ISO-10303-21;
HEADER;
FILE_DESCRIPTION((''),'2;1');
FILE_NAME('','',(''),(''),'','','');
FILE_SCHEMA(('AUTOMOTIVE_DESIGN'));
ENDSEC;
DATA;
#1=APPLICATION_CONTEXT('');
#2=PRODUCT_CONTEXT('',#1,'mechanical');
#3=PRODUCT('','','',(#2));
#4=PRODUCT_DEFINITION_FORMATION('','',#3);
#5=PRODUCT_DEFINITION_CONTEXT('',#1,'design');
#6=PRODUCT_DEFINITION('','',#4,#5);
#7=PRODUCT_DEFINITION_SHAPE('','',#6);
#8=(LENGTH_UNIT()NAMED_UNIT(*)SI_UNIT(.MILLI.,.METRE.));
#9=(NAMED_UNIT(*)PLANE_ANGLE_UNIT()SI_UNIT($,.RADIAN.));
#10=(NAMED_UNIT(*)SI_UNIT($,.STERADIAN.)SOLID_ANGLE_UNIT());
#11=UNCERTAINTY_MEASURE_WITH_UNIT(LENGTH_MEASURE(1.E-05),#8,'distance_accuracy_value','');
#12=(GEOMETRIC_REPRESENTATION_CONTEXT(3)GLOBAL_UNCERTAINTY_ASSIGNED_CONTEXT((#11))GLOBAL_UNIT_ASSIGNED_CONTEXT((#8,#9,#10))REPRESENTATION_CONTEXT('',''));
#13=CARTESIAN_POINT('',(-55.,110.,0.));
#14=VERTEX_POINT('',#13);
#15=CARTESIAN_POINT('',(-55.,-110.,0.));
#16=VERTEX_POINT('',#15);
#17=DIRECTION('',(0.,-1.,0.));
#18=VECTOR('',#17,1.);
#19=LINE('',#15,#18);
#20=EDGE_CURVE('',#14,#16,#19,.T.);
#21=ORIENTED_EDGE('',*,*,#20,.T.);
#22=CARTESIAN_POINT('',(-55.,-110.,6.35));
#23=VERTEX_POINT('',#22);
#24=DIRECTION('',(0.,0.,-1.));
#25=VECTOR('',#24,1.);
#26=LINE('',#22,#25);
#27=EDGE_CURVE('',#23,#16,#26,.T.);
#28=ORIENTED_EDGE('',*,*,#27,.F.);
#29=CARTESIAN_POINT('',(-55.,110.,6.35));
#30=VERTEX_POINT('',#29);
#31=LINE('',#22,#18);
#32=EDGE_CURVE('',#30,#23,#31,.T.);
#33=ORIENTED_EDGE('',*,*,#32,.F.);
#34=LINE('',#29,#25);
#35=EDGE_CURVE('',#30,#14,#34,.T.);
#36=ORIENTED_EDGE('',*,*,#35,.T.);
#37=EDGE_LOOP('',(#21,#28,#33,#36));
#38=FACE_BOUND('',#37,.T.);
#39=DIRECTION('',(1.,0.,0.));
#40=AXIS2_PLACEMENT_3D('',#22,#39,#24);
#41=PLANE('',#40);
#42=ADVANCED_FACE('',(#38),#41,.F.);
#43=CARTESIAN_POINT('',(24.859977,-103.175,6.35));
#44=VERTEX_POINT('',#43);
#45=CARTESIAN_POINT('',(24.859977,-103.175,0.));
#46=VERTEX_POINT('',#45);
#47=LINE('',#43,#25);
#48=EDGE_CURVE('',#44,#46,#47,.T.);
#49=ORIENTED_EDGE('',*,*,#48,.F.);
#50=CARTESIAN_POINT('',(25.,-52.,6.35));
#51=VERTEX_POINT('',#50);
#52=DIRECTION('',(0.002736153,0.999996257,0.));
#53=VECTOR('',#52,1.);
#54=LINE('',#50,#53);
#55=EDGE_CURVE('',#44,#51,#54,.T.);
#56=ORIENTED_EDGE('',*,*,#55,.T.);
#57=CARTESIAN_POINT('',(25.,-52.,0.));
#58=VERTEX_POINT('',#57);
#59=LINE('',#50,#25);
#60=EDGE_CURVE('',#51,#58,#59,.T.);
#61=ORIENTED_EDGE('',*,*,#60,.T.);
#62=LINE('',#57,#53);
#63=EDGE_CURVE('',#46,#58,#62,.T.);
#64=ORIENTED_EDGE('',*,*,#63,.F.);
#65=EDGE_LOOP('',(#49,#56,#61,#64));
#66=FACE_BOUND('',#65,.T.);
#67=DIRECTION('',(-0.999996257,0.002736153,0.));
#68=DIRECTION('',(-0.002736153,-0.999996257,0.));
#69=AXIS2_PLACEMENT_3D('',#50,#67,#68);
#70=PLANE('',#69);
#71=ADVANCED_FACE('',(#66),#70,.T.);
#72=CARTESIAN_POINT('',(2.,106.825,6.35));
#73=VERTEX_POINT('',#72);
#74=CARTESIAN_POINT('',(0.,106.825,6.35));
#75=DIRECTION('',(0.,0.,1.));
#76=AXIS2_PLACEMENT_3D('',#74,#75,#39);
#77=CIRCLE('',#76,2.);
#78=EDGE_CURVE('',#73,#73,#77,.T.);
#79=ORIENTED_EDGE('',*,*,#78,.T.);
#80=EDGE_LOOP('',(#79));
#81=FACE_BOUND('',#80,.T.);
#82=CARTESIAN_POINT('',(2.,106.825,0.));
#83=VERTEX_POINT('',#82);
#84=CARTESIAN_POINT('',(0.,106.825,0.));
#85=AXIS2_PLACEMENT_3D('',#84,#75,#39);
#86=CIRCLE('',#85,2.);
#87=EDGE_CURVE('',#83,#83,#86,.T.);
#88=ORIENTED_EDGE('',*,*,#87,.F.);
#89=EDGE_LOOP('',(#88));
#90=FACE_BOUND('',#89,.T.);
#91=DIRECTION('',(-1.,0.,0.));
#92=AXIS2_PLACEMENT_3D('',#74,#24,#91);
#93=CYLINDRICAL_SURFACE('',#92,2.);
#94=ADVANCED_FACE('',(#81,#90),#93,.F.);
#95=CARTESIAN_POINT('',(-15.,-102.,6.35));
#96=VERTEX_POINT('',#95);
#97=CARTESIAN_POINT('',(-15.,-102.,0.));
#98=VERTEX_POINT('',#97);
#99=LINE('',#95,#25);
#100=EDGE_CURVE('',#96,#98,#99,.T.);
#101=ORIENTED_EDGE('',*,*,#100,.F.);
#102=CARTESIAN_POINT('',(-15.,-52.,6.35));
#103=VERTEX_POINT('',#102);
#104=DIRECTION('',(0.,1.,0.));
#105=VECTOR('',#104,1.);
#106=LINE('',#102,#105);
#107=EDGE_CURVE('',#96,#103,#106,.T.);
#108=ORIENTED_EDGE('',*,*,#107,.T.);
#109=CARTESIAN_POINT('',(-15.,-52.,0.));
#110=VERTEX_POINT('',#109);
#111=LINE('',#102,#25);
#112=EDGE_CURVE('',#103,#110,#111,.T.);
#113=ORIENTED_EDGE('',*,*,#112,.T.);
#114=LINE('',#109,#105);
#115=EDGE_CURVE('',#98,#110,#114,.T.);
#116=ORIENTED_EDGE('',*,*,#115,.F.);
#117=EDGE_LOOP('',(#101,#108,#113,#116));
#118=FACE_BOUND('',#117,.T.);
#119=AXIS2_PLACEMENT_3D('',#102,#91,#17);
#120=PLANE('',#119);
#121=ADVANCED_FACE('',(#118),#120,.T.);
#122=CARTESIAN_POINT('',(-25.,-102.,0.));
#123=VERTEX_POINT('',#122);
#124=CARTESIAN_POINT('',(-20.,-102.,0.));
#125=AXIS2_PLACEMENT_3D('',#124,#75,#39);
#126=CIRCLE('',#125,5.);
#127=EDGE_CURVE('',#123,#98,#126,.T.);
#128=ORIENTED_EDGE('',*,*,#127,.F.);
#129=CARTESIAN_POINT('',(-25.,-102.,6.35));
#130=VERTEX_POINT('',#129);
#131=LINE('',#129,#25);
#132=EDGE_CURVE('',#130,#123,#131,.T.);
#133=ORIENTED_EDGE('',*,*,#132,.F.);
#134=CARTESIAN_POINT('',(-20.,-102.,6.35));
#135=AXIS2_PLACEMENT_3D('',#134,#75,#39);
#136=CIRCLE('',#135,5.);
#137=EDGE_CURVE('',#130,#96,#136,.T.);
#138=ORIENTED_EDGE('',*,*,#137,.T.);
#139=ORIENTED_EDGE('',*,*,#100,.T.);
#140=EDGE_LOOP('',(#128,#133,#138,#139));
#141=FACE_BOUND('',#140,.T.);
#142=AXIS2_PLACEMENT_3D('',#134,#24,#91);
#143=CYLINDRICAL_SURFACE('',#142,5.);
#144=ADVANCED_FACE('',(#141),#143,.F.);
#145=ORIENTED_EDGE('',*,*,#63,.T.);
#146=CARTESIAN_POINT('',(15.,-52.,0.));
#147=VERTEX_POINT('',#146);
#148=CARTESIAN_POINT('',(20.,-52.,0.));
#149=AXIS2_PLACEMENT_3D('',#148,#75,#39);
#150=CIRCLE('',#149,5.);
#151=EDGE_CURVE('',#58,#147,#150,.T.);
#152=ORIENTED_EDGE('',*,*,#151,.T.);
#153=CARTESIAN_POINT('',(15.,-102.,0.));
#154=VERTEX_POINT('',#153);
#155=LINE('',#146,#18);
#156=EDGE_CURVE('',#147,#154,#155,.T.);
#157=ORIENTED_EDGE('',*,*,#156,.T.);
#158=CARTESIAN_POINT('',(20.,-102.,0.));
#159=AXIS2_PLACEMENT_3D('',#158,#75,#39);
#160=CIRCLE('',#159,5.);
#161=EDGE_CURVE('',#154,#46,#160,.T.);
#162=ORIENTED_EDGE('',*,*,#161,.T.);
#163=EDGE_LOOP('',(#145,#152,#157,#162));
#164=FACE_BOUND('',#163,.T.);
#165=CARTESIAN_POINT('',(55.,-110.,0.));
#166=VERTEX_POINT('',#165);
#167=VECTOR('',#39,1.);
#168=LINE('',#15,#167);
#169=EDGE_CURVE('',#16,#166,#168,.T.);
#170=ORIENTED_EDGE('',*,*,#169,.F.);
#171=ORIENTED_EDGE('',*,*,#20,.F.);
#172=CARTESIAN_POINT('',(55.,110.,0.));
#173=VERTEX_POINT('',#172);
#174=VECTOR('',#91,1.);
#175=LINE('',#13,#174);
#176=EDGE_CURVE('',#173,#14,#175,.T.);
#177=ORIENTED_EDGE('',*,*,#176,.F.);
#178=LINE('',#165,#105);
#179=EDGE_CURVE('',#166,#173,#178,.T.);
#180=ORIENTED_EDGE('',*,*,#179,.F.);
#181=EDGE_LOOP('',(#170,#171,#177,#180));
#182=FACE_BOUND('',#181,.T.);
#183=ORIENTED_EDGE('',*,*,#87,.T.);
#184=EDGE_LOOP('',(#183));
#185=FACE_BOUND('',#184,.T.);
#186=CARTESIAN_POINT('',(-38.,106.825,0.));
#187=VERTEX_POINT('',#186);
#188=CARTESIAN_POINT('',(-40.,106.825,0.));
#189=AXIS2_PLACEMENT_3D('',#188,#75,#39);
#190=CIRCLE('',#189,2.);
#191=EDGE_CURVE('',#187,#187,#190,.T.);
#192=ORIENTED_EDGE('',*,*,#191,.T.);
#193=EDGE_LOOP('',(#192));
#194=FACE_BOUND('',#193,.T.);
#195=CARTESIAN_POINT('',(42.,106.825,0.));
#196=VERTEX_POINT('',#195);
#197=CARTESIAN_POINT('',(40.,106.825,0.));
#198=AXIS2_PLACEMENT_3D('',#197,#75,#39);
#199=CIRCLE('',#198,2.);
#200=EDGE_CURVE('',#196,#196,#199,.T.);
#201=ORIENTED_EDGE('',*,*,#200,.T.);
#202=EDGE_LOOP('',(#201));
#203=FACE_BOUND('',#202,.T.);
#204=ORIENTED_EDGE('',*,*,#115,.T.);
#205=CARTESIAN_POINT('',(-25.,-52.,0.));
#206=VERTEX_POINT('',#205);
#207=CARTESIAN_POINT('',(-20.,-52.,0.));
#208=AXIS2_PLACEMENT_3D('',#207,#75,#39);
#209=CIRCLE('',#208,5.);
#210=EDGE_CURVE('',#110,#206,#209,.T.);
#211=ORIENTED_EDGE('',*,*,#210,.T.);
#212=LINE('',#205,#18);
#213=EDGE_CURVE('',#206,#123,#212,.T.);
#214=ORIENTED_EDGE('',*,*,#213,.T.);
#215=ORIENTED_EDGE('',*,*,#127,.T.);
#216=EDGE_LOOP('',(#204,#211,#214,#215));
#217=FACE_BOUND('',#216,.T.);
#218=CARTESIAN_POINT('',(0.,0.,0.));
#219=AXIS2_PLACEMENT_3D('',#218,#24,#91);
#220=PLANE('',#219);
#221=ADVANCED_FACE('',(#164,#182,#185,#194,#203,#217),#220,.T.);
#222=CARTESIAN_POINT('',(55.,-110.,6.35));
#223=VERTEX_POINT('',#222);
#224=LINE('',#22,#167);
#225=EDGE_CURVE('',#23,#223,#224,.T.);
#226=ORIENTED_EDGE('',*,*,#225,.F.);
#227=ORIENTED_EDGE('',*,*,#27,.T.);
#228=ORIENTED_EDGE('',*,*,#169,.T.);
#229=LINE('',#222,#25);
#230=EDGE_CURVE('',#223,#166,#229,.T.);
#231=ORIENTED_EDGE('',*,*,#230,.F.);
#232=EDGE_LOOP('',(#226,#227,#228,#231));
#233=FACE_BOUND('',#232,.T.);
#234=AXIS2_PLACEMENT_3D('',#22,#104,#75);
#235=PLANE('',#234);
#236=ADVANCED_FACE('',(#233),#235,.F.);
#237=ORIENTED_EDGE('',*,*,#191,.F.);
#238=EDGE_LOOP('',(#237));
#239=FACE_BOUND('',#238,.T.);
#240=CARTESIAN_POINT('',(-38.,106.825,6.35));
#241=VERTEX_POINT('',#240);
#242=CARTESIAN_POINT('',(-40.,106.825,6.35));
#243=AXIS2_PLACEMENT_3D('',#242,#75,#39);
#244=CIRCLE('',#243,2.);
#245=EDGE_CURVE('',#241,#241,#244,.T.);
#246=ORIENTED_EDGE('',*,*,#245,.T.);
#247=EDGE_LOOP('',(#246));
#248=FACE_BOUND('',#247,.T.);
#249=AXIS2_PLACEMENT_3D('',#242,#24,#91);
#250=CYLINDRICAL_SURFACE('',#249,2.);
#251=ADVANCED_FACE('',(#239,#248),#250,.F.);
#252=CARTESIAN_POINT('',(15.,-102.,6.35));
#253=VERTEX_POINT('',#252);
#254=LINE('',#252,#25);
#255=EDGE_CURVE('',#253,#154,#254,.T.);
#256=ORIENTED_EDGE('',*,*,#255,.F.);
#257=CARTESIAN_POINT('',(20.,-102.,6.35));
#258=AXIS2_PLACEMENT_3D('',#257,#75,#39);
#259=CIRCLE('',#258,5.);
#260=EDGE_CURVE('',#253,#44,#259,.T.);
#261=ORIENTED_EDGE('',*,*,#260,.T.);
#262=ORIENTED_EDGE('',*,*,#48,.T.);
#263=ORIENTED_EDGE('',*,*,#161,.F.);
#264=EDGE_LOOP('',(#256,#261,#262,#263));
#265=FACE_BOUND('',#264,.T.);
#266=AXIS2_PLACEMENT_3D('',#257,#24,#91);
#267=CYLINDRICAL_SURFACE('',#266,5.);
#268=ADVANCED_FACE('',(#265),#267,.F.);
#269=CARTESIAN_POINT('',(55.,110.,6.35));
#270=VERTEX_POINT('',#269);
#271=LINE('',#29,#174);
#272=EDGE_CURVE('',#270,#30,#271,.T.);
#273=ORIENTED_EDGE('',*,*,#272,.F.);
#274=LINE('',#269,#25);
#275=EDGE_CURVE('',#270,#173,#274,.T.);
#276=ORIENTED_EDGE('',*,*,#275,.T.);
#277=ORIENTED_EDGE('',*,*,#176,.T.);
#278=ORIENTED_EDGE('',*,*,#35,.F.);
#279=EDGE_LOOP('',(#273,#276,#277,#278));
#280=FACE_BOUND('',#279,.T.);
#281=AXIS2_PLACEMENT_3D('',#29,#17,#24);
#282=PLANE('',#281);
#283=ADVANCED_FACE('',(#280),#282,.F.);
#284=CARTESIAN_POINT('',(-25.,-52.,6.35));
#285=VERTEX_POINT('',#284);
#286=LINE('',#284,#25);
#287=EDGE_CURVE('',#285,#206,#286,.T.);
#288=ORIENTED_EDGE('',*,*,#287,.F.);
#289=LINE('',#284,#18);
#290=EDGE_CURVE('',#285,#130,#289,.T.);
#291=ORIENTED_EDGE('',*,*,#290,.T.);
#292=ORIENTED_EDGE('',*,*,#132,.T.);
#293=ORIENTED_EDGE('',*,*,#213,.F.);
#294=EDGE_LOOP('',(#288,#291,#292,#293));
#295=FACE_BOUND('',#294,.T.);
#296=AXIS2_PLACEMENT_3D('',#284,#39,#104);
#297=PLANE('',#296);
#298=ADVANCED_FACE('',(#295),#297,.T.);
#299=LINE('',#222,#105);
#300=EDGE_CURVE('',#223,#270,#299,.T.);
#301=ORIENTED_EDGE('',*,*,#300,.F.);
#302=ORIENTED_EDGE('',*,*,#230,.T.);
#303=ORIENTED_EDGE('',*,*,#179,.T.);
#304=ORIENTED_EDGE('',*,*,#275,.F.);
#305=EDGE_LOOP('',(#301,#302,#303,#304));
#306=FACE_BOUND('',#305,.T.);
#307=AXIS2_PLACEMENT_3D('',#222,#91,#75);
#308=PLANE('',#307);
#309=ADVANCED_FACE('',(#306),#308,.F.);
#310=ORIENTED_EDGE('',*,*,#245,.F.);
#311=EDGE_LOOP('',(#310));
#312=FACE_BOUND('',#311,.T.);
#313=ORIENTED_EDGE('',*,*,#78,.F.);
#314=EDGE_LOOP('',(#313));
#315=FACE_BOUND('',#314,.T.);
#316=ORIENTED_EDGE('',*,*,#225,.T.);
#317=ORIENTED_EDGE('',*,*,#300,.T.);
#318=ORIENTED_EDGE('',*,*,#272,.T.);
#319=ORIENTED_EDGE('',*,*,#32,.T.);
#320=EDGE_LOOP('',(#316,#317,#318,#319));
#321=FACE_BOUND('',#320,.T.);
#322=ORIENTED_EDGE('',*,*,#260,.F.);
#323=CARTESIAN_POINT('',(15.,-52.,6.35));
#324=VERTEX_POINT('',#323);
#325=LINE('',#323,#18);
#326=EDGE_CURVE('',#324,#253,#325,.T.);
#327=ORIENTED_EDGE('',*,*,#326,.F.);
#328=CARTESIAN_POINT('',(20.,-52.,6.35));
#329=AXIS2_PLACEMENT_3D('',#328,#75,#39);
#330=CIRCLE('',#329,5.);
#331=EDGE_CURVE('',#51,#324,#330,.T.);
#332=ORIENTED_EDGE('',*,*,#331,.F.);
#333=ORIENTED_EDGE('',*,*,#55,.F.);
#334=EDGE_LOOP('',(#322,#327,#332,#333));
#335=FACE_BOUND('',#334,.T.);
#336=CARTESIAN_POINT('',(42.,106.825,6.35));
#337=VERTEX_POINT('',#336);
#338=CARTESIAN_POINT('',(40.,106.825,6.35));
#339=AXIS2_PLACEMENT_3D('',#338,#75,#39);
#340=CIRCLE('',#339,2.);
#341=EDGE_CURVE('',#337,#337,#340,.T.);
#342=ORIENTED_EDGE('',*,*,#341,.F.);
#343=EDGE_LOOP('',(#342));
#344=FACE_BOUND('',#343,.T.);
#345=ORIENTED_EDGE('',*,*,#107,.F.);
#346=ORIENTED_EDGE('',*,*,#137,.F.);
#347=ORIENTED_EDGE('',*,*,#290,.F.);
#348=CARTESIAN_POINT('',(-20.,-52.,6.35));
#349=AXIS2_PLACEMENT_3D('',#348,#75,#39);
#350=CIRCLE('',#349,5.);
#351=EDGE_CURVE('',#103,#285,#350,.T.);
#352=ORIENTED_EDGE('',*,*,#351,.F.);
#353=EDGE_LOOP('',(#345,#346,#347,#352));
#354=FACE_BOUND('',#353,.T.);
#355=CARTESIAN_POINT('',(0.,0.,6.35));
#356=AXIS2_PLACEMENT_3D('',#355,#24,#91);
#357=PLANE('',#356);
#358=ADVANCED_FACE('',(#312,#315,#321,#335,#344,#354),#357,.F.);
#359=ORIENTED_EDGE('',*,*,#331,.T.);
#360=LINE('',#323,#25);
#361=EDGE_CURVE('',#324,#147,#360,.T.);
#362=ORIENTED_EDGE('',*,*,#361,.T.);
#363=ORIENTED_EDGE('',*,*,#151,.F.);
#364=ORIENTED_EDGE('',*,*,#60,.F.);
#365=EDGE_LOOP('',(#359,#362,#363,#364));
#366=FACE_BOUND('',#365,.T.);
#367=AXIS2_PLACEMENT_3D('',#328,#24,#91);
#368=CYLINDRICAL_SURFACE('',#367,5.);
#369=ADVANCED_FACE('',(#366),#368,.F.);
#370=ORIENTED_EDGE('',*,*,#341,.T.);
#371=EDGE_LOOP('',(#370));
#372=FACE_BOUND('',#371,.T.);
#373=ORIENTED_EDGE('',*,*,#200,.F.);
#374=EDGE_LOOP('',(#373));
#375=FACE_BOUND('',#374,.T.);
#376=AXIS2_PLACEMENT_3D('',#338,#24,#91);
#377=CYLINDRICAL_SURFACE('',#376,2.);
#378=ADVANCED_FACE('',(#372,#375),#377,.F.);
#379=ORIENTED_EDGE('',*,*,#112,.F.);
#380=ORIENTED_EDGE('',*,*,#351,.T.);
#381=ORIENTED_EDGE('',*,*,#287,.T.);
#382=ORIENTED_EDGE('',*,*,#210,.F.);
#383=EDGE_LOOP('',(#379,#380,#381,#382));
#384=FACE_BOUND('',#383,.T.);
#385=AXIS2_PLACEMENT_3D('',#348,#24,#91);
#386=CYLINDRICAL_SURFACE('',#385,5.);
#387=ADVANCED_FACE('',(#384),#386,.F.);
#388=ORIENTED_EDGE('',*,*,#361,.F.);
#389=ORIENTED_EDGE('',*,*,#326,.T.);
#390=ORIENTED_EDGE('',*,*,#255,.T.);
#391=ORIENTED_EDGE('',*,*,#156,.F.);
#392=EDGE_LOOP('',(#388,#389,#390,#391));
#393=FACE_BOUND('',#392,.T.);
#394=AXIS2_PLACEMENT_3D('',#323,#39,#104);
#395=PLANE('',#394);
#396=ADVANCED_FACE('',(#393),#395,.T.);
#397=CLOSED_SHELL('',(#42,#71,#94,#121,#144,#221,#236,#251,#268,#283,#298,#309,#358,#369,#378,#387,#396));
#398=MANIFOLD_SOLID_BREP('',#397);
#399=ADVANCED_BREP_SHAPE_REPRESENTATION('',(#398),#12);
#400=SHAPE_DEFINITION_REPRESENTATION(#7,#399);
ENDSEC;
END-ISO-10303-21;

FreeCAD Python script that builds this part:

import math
import FreeCAD as App
import Part
import Sketcher


def add_polygon(sketch, points):
    """Adds a closed chain of lines whose ends are joined by coincident constraints."""
    first, n = sketch.GeometryCount, len(points)
    for a, b in zip(points, points[1:] + points[:1]):
        sketch.addGeometry(Part.LineSegment(App.Vector(*a, 0), App.Vector(*b, 0)), False)
    for i in range(n):
        sketch.addConstraint(Sketcher.Constraint("Coincident", first + i, 2, first + (i + 1) % n, 1))

doc = App.newDocument("Part")
params = doc.addObject("Spreadsheet::Sheet", "Params")
for row, (alias, value) in enumerate([
    ("sketch1_width", "110 mm"),
    ("sketch1_height", "220 mm"),
    ("pad1_length", "6.35 mm"),
    ("sketch2_diameter", "4 mm"),
    ("sketch2_radius", "5 mm"),
    ("sketch2_height", "50 mm"),
], start=1):
    params.set(f"A{row}", alias)
    params.set(f"B{row}", "=" + value)
    params.setAlias(f"B{row}", alias)

body = doc.addObject("PartDesign::Body", "Body")

sketch1 = doc.addObject("Sketcher::SketchObject", "Sketch")
body.addObject(sketch1)
sketch1.AttachmentSupport = (doc.XY_Plane, [""])
sketch1.MapMode = "FlatFace"
add_polygon(sketch1, [(-55, 110), (-55, -110), (55, -110), (55, 110)])
sketch1.addConstraint([
    Sketcher.Constraint("Vertical", 0),
    Sketcher.Constraint("Horizontal", 1),
    Sketcher.Constraint("Vertical", 2),
    Sketcher.Constraint("Horizontal", 3),
    Sketcher.Constraint("Symmetric", 0, 2, 2, 2, -1, 1),
    Sketcher.Constraint("DistanceX", 1, 1, 1, 2, 110.0),
    Sketcher.Constraint("DistanceY", 0, 2, 0, 1, 220.0),
])
sketch1.setExpression("Constraints[9]", "Params.sketch1_width")
sketch1.setExpression("Constraints[10]", "Params.sketch1_height")
pad1 = doc.addObject("PartDesign::Pad", "Pad")
body.addObject(pad1)
pad1.Profile = sketch1
pad1.setExpression("Length", "Params.pad1_length")

sketch2 = doc.addObject("Sketcher::SketchObject", "Sketch001")
body.addObject(sketch2)
sketch2.AttachmentSupport = (doc.XY_Plane, [""])
sketch2.MapMode = "FlatFace"
sketch2.addGeometry([
    Part.Circle(App.Vector(40, 106.8, 0), App.Vector(0, 0, 1), 2),
    Part.Circle(App.Vector(-40, 106.8, 0), App.Vector(0, 0, 1), 2),
    Part.Circle(App.Vector(0, 106.8, 0), App.Vector(0, 0, 1), 2),
    Part.LineSegment(App.Vector(15, -52, 0), App.Vector(15, -102, 0)),
    Part.ArcOfCircle(Part.Circle(App.Vector(20, -102, 0), App.Vector(0, 0, 1), 5), math.radians(180), math.radians(346)),
    Part.LineSegment(App.Vector(24.9, -103.2, 0), App.Vector(25, -52, 0)),
    Part.ArcOfCircle(Part.Circle(App.Vector(20, -52, 0), App.Vector(0, 0, 1), 5), math.radians(0), math.radians(180)),
    Part.LineSegment(App.Vector(-25, -52, 0), App.Vector(-25, -102, 0)),
    Part.ArcOfCircle(Part.Circle(App.Vector(-20, -102, 0), App.Vector(0, 0, 1), 5), math.radians(180), math.radians(360)),
    Part.LineSegment(App.Vector(-15, -102, 0), App.Vector(-15, -52, 0)),
    Part.ArcOfCircle(Part.Circle(App.Vector(-20, -52, 0), App.Vector(0, 0, 1), 5), math.radians(0), math.radians(180)),
], False)
sketch2.addConstraint([
    Sketcher.Constraint("Tangent", 3, 2, 4, 1),
    Sketcher.Constraint("Coincident", 4, 2, 5, 1),
    Sketcher.Constraint("Coincident", 5, 2, 6, 1),
    Sketcher.Constraint("Tangent", 6, 2, 3, 1),
    Sketcher.Constraint("Tangent", 7, 2, 8, 1),
    Sketcher.Constraint("Tangent", 8, 2, 9, 1),
    Sketcher.Constraint("Tangent", 9, 2, 10, 1),
    Sketcher.Constraint("Tangent", 10, 2, 7, 1),
    Sketcher.Constraint("Vertical", 3),
    Sketcher.Constraint("Vertical", 7),
    Sketcher.Constraint("Vertical", 9),
    Sketcher.Constraint("Equal", 0, 1),
    Sketcher.Constraint("Equal", 1, 2),
    Sketcher.Constraint("Equal", 4, 6),
    Sketcher.Constraint("Equal", 6, 8),
    Sketcher.Constraint("Symmetric", 0, 3, 1, 3, -2),
    Sketcher.Constraint("Symmetric", 4, 3, 8, 3, -2),
    Sketcher.Constraint("PointOnObject", 2, 3, -2),
    Sketcher.Constraint("Horizontal", 1, 3, 2, 3),
    Sketcher.Constraint("Horizontal", 6, 3, 10, 3),
    Sketcher.Constraint("Horizontal", 10, 3, 5, 2),
    Sketcher.Constraint("Diameter", 0, 4.0),
    Sketcher.Constraint("Radius", 4, 5.0),
    Sketcher.Constraint("DistanceY", 3, 2, 3, 1, 50.0),
    Sketcher.Constraint("DistanceX", -1, 1, 0, 3, 40.0),
    Sketcher.Constraint("DistanceX", -1, 1, 4, 3, 20.0),
    Sketcher.Constraint("DistanceY", 4, 3, -1, 1, 102.0),
    Sketcher.Constraint("DistanceY", -1, 1, 0, 3, 106.825),
    Sketcher.Constraint("DistanceY", 4, 2, -1, 1, 103.175),
])
sketch2.setExpression("Constraints[21]", "Params.sketch2_diameter")
sketch2.setExpression("Constraints[22]", "Params.sketch2_radius")
sketch2.setExpression("Constraints[23]", "Params.sketch2_height")
pocket1 = doc.addObject("PartDesign::Pocket", "Pocket")
body.addObject(pocket1)
pocket1.Profile = sketch2
pocket1.Type = "ThroughAll"
pocket1.Reversed = True

doc.recompute()
